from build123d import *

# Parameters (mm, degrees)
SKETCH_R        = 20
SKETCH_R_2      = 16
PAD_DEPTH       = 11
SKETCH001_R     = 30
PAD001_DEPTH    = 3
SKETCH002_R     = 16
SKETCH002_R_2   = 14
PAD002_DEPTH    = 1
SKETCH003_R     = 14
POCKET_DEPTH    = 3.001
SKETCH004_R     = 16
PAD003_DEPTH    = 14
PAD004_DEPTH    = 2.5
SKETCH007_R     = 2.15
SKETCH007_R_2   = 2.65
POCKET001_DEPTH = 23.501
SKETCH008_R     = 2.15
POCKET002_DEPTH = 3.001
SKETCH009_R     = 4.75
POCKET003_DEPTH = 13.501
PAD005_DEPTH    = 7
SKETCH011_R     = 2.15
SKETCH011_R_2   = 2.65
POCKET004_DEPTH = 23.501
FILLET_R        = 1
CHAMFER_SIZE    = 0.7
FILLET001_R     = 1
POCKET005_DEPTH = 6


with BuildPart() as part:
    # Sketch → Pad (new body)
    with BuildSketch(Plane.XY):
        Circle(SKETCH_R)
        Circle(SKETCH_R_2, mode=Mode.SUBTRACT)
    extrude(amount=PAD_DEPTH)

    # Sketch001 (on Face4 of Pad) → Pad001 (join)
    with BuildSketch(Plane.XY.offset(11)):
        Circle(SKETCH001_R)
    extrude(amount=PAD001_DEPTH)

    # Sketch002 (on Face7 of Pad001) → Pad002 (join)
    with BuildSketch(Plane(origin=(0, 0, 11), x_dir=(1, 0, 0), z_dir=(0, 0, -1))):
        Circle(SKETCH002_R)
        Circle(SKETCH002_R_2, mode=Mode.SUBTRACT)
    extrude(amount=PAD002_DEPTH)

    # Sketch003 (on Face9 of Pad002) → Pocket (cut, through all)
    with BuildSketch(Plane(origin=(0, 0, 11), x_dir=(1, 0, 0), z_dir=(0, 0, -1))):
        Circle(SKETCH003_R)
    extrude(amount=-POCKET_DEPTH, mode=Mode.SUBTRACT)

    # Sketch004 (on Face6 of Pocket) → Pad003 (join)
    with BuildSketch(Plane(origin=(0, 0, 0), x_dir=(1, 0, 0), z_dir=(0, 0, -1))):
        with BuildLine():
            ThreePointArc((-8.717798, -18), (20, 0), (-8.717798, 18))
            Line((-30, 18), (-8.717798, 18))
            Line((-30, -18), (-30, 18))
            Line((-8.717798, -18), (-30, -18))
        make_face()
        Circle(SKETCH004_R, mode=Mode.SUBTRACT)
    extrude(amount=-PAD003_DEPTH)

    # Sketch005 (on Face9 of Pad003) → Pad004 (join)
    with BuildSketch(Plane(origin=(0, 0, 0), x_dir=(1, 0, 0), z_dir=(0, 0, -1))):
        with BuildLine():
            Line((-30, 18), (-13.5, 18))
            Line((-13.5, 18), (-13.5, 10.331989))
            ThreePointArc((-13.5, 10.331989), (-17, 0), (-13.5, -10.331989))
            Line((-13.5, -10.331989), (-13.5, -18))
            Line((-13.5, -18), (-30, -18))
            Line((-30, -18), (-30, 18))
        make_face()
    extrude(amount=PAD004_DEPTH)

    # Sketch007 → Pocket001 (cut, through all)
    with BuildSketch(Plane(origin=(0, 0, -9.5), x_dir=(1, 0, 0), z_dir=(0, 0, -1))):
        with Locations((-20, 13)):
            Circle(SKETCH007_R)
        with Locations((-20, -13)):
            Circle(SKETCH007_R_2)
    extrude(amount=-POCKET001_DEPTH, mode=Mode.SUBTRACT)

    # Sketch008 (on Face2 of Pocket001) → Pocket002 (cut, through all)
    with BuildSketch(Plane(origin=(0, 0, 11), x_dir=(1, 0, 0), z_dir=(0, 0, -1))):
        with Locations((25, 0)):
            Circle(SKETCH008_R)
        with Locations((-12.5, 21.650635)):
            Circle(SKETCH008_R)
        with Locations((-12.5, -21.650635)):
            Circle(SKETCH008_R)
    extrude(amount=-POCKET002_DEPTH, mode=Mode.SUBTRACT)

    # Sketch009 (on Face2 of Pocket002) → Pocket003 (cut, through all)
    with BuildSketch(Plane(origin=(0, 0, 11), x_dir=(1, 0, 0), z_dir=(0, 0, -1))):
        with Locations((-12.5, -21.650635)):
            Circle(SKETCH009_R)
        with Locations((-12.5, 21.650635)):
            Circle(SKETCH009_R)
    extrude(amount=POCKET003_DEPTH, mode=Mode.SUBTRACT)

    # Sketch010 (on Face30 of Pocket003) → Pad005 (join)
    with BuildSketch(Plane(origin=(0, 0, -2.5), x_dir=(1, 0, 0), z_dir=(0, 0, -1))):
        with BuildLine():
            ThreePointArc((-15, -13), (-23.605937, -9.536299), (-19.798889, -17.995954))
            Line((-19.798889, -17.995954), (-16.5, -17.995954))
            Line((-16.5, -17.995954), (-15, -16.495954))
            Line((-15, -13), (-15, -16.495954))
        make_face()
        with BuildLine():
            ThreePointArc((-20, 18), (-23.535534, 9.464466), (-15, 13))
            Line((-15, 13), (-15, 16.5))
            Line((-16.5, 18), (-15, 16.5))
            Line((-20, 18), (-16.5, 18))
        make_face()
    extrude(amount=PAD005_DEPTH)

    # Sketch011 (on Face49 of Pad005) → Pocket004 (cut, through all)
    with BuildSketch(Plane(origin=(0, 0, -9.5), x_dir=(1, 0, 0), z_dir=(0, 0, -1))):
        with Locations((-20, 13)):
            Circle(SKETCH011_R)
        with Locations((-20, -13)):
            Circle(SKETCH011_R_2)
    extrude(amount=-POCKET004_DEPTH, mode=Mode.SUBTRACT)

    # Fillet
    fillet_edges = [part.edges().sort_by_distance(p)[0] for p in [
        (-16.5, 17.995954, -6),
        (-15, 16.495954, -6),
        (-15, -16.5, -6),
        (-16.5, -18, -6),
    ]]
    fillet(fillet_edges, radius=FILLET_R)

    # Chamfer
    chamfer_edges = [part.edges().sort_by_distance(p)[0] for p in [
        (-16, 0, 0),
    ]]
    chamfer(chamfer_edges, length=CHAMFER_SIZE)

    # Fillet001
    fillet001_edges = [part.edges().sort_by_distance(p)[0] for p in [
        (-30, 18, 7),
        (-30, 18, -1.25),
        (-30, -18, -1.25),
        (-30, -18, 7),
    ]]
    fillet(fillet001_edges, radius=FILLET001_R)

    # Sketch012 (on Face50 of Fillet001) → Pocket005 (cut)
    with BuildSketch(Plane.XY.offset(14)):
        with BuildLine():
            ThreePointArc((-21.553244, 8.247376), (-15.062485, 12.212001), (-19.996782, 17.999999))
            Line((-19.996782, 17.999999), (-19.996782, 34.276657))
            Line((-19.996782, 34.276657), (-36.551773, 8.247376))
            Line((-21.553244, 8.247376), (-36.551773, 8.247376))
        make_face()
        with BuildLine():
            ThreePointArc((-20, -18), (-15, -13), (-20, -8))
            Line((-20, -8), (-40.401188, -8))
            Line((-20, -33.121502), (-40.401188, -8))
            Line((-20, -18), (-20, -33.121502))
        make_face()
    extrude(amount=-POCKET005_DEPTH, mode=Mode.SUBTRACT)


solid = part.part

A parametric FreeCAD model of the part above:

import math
import FreeCAD as App
import Part
import Sketcher
Q = App.Units.Quantity


def edges_at(feature, points):
    """Names of the edges that pass closest to the given points."""
    edges = feature.Shape.Edges
    near = lambda p: min(range(len(edges)), key=lambda i: edges[i].distToShape(Part.Vertex(*p))[0])
    return sorted({f"Edge{near(p) + 1}" for p in points})

doc = App.newDocument("Part")
params = doc.addObject("Spreadsheet::Sheet", "Params")
for row, (alias, value) in enumerate([
    ("sketch1_diameter", "40 mm"),
    ("sketch1_diameter2", "32 mm"),
    ("pad1_length", "11 mm"),
    ("sketch2_diameter", "60 mm"),
    ("pad2_length", "3 mm"),
    ("sketch3_diameter", "32 mm"),
    ("sketch3_diameter2", "28 mm"),
    ("pad3_length", "1 mm"),
    ("sketch4_diameter", "28 mm"),
    ("sketch5_diameter", "32 mm"),
    ("sketch5_radius", "20 mm"),
    ("sketch5_height", "36 mm"),
    ("pad4_length", "14 mm"),
    ("sketch6_radius", "17 mm"),
    ("sketch6_height", "36 mm"),
    ("sketch6_width", "16.5 mm"),
    ("pad5_length", "2.5 mm"),
    ("sketch7_diameter", "4.3 mm"),
    ("sketch7_diameter2", "5.3 mm"),
    ("sketch8_diameter", "4.3 mm"),
    ("sketch9_diameter", "9.5 mm"),
    ("sketch10_radius", "5 mm"),
    ("sketch10_width", "3.5 mm"),
    ("pad6_length", "7 mm"),
    ("sketch11_diameter", "4.3 mm"),
    ("sketch11_diameter2", "5.3 mm"),
    ("fillet_radius", "1 mm"),
    ("chamfer_size", "0.7 mm"),
    ("fillet2_radius", "1 mm"),
    ("sketch12_radius", "5 mm"),
    ("pocket6_length", "6 mm"),
], start=1):
    params.set(f"A{row}", alias)
    params.set(f"B{row}", "=" + value)
    params.setAlias(f"B{row}", alias)

body = doc.addObject("PartDesign::Body", "Body")

sketch1 = body.newObject("Sketcher::SketchObject", "Sketch")
sketch1.AttachmentSupport = (doc.getObject("XY_Plane"), [""])
sketch1.MapMode = "FlatFace"
sketch1.addGeometry([
    Part.Circle(App.Vector(0, 0, 0), App.Vector(0, 0, 1), 20),
    Part.Circle(App.Vector(0, 0, 0), App.Vector(0, 0, 1), 16),
], False)
sketch1.addConstraint([
    Sketcher.Constraint("Coincident", 0, 3, -1, 1),
    Sketcher.Constraint("Coincident", 1, 3, -1, 1),
    Sketcher.Constraint("Diameter", 0, Q("40 mm")),
    Sketcher.Constraint("Diameter", 1, Q("32 mm")),
])
sketch1.setExpression("Constraints[2]", "Params.sketch1_diameter")
sketch1.setExpression("Constraints[3]", "Params.sketch1_diameter2")
pad1 = body.newObject("PartDesign::Pad", "Pad")
pad1.Profile = sketch1
pad1.setExpression("Length", "Params.pad1_length")

sketch2 = body.newObject("Sketcher::SketchObject", "Sketch001")
sketch2.AttachmentSupport = (doc.getObject("XY_Plane"), [""])
sketch2.MapMode = "FlatFace"
sketch2.AttachmentOffset = App.Placement(App.Vector(0, 0, 11), App.Rotation())
sketch2.addGeometry(Part.Circle(App.Vector(0, 0, 0), App.Vector(0, 0, 1), 30), False)
sketch2.addConstraint([
    Sketcher.Constraint("Coincident", 0, 3, -1, 1),
    Sketcher.Constraint("Diameter", 0, Q("60 mm")),
])
sketch2.setExpression("Constraints[1]", "Params.sketch2_diameter")
pad2 = body.newObject("PartDesign::Pad", "Pad001")
pad2.Profile = sketch2
pad2.setExpression("Length", "Params.pad2_length")

sketch3 = body.newObject("Sketcher::SketchObject", "Sketch002")
sketch3.AttachmentSupport = (doc.getObject("XY_Plane"), [""])
sketch3.MapMode = "FlatFace"
sketch3.AttachmentOffset = App.Placement(App.Vector(0, 0, 11), App.Rotation())
sketch3.addGeometry([
    Part.Circle(App.Vector(0, 0, 0), App.Vector(0, 0, 1), 16),
    Part.Circle(App.Vector(0, 0, 0), App.Vector(0, 0, 1), 14),
], False)
sketch3.addConstraint([
    Sketcher.Constraint("Coincident", 0, 3, -1, 1),
    Sketcher.Constraint("Coincident", 1, 3, -1, 1),
    Sketcher.Constraint("Diameter", 0, Q("32 mm")),
    Sketcher.Constraint("Diameter", 1, Q("28 mm")),
])
sketch3.setExpression("Constraints[2]", "Params.sketch3_diameter")
sketch3.setExpression("Constraints[3]", "Params.sketch3_diameter2")
pad3 = body.newObject("PartDesign::Pad", "Pad002")
pad3.Profile = sketch3
pad3.setExpression("Length", "Params.pad3_length")
pad3.Reversed = True

sketch4 = body.newObject("Sketcher::SketchObject", "Sketch003")
sketch4.AttachmentSupport = (doc.getObject("XY_Plane"), [""])
sketch4.MapMode = "FlatFace"
sketch4.AttachmentOffset = App.Placement(App.Vector(0, 0, 11), App.Rotation())
sketch4.addGeometry(Part.Circle(App.Vector(0, 0, 0), App.Vector(0, 0, 1), 14), False)
sketch4.addConstraint([
    Sketcher.Constraint("Coincident", 0, 3, -1, 1),
    Sketcher.Constraint("Diameter", 0, Q("28 mm")),
])
sketch4.setExpression("Constraints[1]", "Params.sketch4_diameter")
pocket1 = body.newObject("PartDesign::Pocket", "Pocket")
pocket1.Profile = sketch4
pocket1.Type = "ThroughAll"
pocket1.Reversed = True

sketch5 = body.newObject("Sketcher::SketchObject", "Sketch004")
sketch5.AttachmentSupport = (doc.getObject("XY_Plane"), [""])
sketch5.MapMode = "FlatFace"
sketch5.addGeometry([
    Part.ArcOfCircle(Part.Circle(App.Vector(0, 0, 0), App.Vector(0, 0, 1), 20), math.radians(-116), math.radians(116)),
    Part.LineSegment(App.Vector(-9, -18, 0), App.Vector(-30, -18, 0)),
    Part.LineSegment(App.Vector(-30, -18, 0), App.Vector(-30, 18, 0)),
    Part.LineSegment(App.Vector(-30, 18, 0), App.Vector(-9, 18, 0)),
    Part.Circle(App.Vector(0, 0, 0), App.Vector(0, 0, 1), 16),
], False)
sketch5.addConstraint([
    Sketcher.Constraint("Coincident", 0, 1, 1, 1),
    Sketcher.Constraint("Coincident", 1, 2, 2, 1),
    Sketcher.Constraint("Coincident", 2, 2, 3, 1),
    Sketcher.Constraint("Coincident", 3, 2, 0, 2),
    Sketcher.Constraint("Horizontal", 1),
    Sketcher.Constraint("Vertical", 2),
    Sketcher.Constraint("Horizontal", 3),
    Sketcher.Constraint("Coincident", 0, 3, -1, 1),
    Sketcher.Constraint("Coincident", 4, 3, -1, 1),
    Sketcher.Constraint("Vertical", 0, 1, 3, 2),
    Sketcher.Constraint("Diameter", 4, Q("32 mm")),
    Sketcher.Constraint("Radius", 0, Q("20 mm")),
    Sketcher.Constraint("DistanceY", 2, 1, 2, 2, Q("36 mm")),
    Sketcher.Constraint("DistanceX", 1, 2, -1, 1, Q("30 mm")),
])
sketch5.setExpression("Constraints[10]", "Params.sketch5_diameter")
sketch5.setExpression("Constraints[11]", "Params.sketch5_radius")
sketch5.setExpression("Constraints[12]", "Params.sketch5_height")
pad4 = body.newObject("PartDesign::Pad", "Pad003")
pad4.Profile = sketch5
pad4.setExpression("Length", "Params.pad4_length")

sketch6 = body.newObject("Sketcher::SketchObject", "Sketch005")
sketch6.AttachmentSupport = (doc.getObject("XY_Plane"), [""])
sketch6.MapMode = "FlatFace"
sketch6.addGeometry([
    Part.LineSegment(App.Vector(-14, -18, 0), App.Vector(-30, -18, 0)),
    Part.LineSegment(App.Vector(-30, -18, 0), App.Vector(-30, 18, 0)),
    Part.LineSegment(App.Vector(-30, 18, 0), App.Vector(-14, 18, 0)),
    Part.LineSegment(App.Vector(-14, 18, 0), App.Vector(-14, 10, 0)),
    Part.ArcOfCircle(Part.Circle(App.Vector(0, 0, 0), App.Vector(0, 0, 1), 17), math.radians(143), math.radians(217)),
    Part.LineSegment(App.Vector(-14, -10, 0), App.Vector(-14, -18, 0)),
], False)
sketch6.addConstraint([
    Sketcher.Constraint("Coincident", 0, 2, 1, 1),
    Sketcher.Constraint("Coincident", 1, 2, 2, 1),
    Sketcher.Constraint("Coincident", 2, 2, 3, 1),
    Sketcher.Constraint("Coincident", 3, 2, 4, 1),
    Sketcher.Constraint("Coincident", 4, 2, 5, 1),
    Sketcher.Constraint("Coincident", 5, 2, 0, 1),
    Sketcher.Constraint("Horizontal", 0),
    Sketcher.Constraint("Vertical", 1),
    Sketcher.Constraint("Horizontal", 2),
    Sketcher.Constraint("Vertical", 3),
    Sketcher.Constraint("Vertical", 5),
    Sketcher.Constraint("Coincident", 4, 3, -1, 1),
    Sketcher.Constraint("Symmetric", 2, 2, 5, 2, -1),
    Sketcher.Constraint("Radius", 4, Q("17 mm")),
    Sketcher.Constraint("DistanceY", 1, 1, 1, 2, Q("36 mm")),
    Sketcher.Constraint("DistanceX", 0, 2, 0, 1, Q("16.5 mm")),
    Sketcher.Constraint("DistanceX", 0, 2, -1, 1, Q("30 mm")),
])
sketch6.setExpression("Constraints[13]", "Params.sketch6_radius")
sketch6.setExpression("Constraints[14]", "Params.sketch6_height")
sketch6.setExpression("Constraints[15]", "Params.sketch6_width")
pad5 = body.newObject("PartDesign::Pad", "Pad004")
pad5.Profile = sketch6
pad5.setExpression("Length", "Params.pad5_length")
pad5.Reversed = True

sketch7 = body.newObject("Sketcher::SketchObject", "Sketch006")
sketch7.AttachmentSupport = (doc.getObject("XY_Plane"), [""])
sketch7.MapMode = "FlatFace"
sketch7.AttachmentOffset = App.Placement(App.Vector(0, 0, -9.5), App.Rotation())
sketch7.addGeometry([
    Part.Circle(App.Vector(-20, -13, 0), App.Vector(0, 0, 1), 2.1),
    Part.Circle(App.Vector(-20, 13, 0), App.Vector(0, 0, 1), 2.6),
], False)
sketch7.addConstraint([
    Sketcher.Constraint("Symmetric", 0, 3, 1, 3, -1),
    Sketcher.Constraint("Diameter", 0, Q("4.3 mm")),
    Sketcher.Constraint("Diameter", 1, Q("5.3 mm")),
    Sketcher.Constraint("DistanceX", 0, 3, -1, 1, Q("20 mm")),
    Sketcher.Constraint("DistanceY", 0, 3, -1, 1, Q("13 mm")),
])
sketch7.setExpression("Constraints[1]", "Params.sketch7_diameter")
sketch7.setExpression("Constraints[2]", "Params.sketch7_diameter2")
pocket2 = body.newObject("PartDesign::Pocket", "Pocket001")
pocket2.Profile = sketch7
pocket2.Type = "ThroughAll"
pocket2.Reversed = True

sketch8 = body.newObject("Sketcher::SketchObject", "Sketch007")
sketch8.AttachmentSupport = (doc.getObject("XY_Plane"), [""])
sketch8.MapMode = "FlatFace"
sketch8.AttachmentOffset = App.Placement(App.Vector(0, 0, 11), App.Rotation())
sketch8.addGeometry([
    Part.Circle(App.Vector(25, 0, 0), App.Vector(0, 0, 1), 2.1),
    Part.Circle(App.Vector(-12.5, -21.7, 0), App.Vector(0, 0, 1), 2.1),
    Part.Circle(App.Vector(-12.5, 21.7, 0), App.Vector(0, 0, 1), 2.1),
], False)
sketch8.addConstraint([
    Sketcher.Constraint("Equal", 0, 1),
    Sketcher.Constraint("Equal", 1, 2),
    Sketcher.Constraint("Symmetric", 1, 3, 2, 3, -1),
    Sketcher.Constraint("PointOnObject", 0, 3, -1),
    Sketcher.Constraint("Diameter", 0, Q("4.3 mm")),
    Sketcher.Constraint("DistanceX", -1, 1, 0, 3, Q("25 mm")),
    Sketcher.Constraint("DistanceX", 1, 3, -1, 1, Q("12.5 mm")),
    Sketcher.Constraint("DistanceY", 1, 3, 2, 3, Q("43.30127 mm")),
])
sketch8.setExpression("Constraints[4]", "Params.sketch8_diameter")
pocket3 = body.newObject("PartDesign::Pocket", "Pocket002")
pocket3.Profile = sketch8
pocket3.Type = "ThroughAll"
pocket3.Reversed = True

sketch9 = body.newObject("Sketcher::SketchObject", "Sketch008")
sketch9.AttachmentSupport = (doc.getObject("XY_Plane"), [""])
sketch9.MapMode = "FlatFace"
sketch9.AttachmentOffset = App.Placement(App.Vector(0, 0, 11), App.Rotation())
sketch9.addGeometry([
    Part.Circle(App.Vector(-12.5, 21.7, 0), App.Vector(0, 0, 1), 4.8),
    Part.Circle(App.Vector(-12.5, -21.7, 0), App.Vector(0, 0, 1), 4.8),
], False)
sketch9.addConstraint([
    Sketcher.Constraint("Equal", 0, 1),
    Sketcher.Constraint("Symmetric", 0, 3, 1, 3, -1),
    Sketcher.Constraint("Diameter", 0, Q("9.5 mm")),
    Sketcher.Constraint("DistanceX", 0, 3, -1, 1, Q("12.5 mm")),
    Sketcher.Constraint("DistanceY", 1, 3, 0, 3, Q("43.30127 mm")),
])
sketch9.setExpression("Constraints[2]", "Params.sketch9_diameter")
pocket4 = body.newObject("PartDesign::Pocket", "Pocket003")
pocket4.Profile = sketch9
pocket4.Type = "ThroughAll"

sketch10 = body.newObject("Sketcher::SketchObject", "Sketch009")
sketch10.AttachmentSupport = (doc.getObject("XY_Plane"), [""])
sketch10.MapMode = "FlatFace"
sketch10.AttachmentOffset = App.Placement(App.Vector(0, 0, -2.5), App.Rotation())
sketch10.addGeometry([
    Part.ArcOfCircle(Part.Circle(App.Vector(-20, 13, 0), App.Vector(0, 0, 1), 5), math.radians(88), math.radians(360)),
    Part.LineSegment(App.Vector(-19.8, 18, 0), App.Vector(-16.5, 18, 0)),
    Part.LineSegment(App.Vector(-16.5, 18, 0), App.Vector(-15, 16.5, 0)),
    Part.LineSegment(App.Vector(-15, 16.5, 0), App.Vector(-15, 13, 0)),
    Part.ArcOfCircle(Part.Circle(App.Vector(-20, -13, 0), App.Vector(0, 0, 1), 5), math.radians(0), math.radians(270)),
    Part.LineSegment(App.Vector(-15, -13, 0), App.Vector(-15, -16.5, 0)),
    Part.LineSegment(App.Vector(-15, -16.5, 0), App.Vector(-16.5, -18, 0)),
    Part.LineSegment(App.Vector(-16.5, -18, 0), App.Vector(-20, -18, 0)),
], False)
sketch10.addConstraint([
    Sketcher.Constraint("Coincident", 0, 1, 1, 1),
    Sketcher.Constraint("Coincident", 1, 2, 2, 1),
    Sketcher.Constraint("Coincident", 2, 2, 3, 1),
    Sketcher.Constraint("Tangent", 3, 2, 0, 2),
    Sketcher.Constraint("Tangent", 4, 1, 5, 1),
    Sketcher.Constraint("Coincident", 5, 2, 6, 1),
    Sketcher.Constraint("Coincident", 6, 2, 7, 1),
    Sketcher.Constraint("Tangent", 7, 2, 4, 2),
    Sketcher.Constraint("Horizontal", 1),
    Sketcher.Constraint("Vertical", 3),
    Sketcher.Constraint("Vertical", 5),
    Sketcher.Constraint("Horizontal", 7),
    Sketcher.Constraint("Equal", 0, 4),
    Sketcher.Constraint("Symmetric", 0, 3, 4, 3, -1),
    Sketcher.Constraint("Perpendicular", 2, 6),
    Sketcher.Constraint("Vertical", 1, 2, 6, 2),
    Sketcher.Constraint("Equal", 7, 5),
    Sketcher.Constraint("Radius", 0, Q("5 mm")),
    Sketcher.Constraint("DistanceX", 7, 2, 7, 1, Q("3.5 mm")),
    Sketcher.Constraint("DistanceX", 0, 3, -1, 1, Q("20 mm")),
    Sketcher.Constraint("DistanceY", -1, 1, 0, 3, Q("13 mm")),
    Sketcher.Constraint("DistanceX", 1, 1, 1, 2, Q("3.298889 mm")),
])
sketch10.setExpression("Constraints[17]", "Params.sketch10_radius")
sketch10.setExpression("Constraints[18]", "Params.sketch10_width")
pad6 = body.newObject("PartDesign::Pad", "Pad005")
pad6.Profile = sketch10
pad6.setExpression("Length", "Params.pad6_length")
pad6.Reversed = True

sketch11 = body.newObject("Sketcher::SketchObject", "Sketch010")
sketch11.AttachmentSupport = (doc.getObject("XY_Plane"), [""])
sketch11.MapMode = "FlatFace"
sketch11.AttachmentOffset = App.Placement(App.Vector(0, 0, -9.5), App.Rotation())
sketch11.addGeometry([
    Part.Circle(App.Vector(-20, -13, 0), App.Vector(0, 0, 1), 2.1),
    Part.Circle(App.Vector(-20, 13, 0), App.Vector(0, 0, 1), 2.6),
], False)
sketch11.addConstraint([
    Sketcher.Constraint("Symmetric", 0, 3, 1, 3, -1),
    Sketcher.Constraint("Diameter", 0, Q("4.3 mm")),
    Sketcher.Constraint("Diameter", 1, Q("5.3 mm")),
    Sketcher.Constraint("DistanceX", 0, 3, -1, 1, Q("20 mm")),
    Sketcher.Constraint("DistanceY", 0, 3, -1, 1, Q("13 mm")),
])
sketch11.setExpression("Constraints[1]", "Params.sketch11_diameter")
sketch11.setExpression("Constraints[2]", "Params.sketch11_diameter2")
pocket5 = body.newObject("PartDesign::Pocket", "Pocket004")
pocket5.Profile = sketch11
pocket5.Type = "ThroughAll"
pocket5.Reversed = True
doc.recompute()

fillet = body.newObject("PartDesign::Fillet", "Fillet")
fillet.Base = (pocket5, edges_at(pocket5, [
    (-16.5, 17.996, -6),
    (-15, 16.496, -6),
    (-15, -16.5, -6),
    (-16.5, -18, -6),
]))
fillet.setExpression("Radius", "Params.fillet_radius")
doc.recompute()

chamfer = body.newObject("PartDesign::Chamfer", "Chamfer")
chamfer.Base = (fillet, edges_at(fillet, [(-16, 0, 0)]))
chamfer.setExpression("Size", "Params.chamfer_size")
doc.recompute()

fillet2 = body.newObject("PartDesign::Fillet", "Fillet001")
fillet2.Base = (chamfer, edges_at(chamfer, [
    (-30, 18, 5.75),
    (-30, 18, 5.75),
    (-30, -18, 5.75),
    (-30, -18, 5.75),
]))
fillet2.setExpression("Radius", "Params.fillet2_radius")

sketch12 = body.newObject("Sketcher::SketchObject", "Sketch011")
sketch12.AttachmentSupport = (doc.getObject("XY_Plane"), [""])
sketch12.MapMode = "FlatFace"
sketch12.AttachmentOffset = App.Placement(App.Vector(0, 0, 14), App.Rotation())
sketch12.addGeometry([
    Part.ArcOfCircle(Part.Circle(App.Vector(-20, 13, 0), App.Vector(0, 0, 1), 5), math.radians(-108), math.radians(90)),
    Part.LineSegment(App.Vector(-20, 18, 0), App.Vector(-20, 34, 0)),
    Part.LineSegment(App.Vector(-20, 34, 0), App.Vector(-37, 8, 0)),
    Part.LineSegment(App.Vector(-37, 8, 0), App.Vector(-22, 8, 0)),
    Part.ArcOfCircle(Part.Circle(App.Vector(-20, -13, 0), App.Vector(0, 0, 1), 5), math.radians(-90), math.radians(90)),
    Part.LineSegment(App.Vector(-20, -8, 0), App.Vector(-40, -8, 0)),
    Part.LineSegment(App.Vector(-40, -8, 0), App.Vector(-20, -33, 0)),
    Part.LineSegment(App.Vector(-20, -33, 0), App.Vector(-20, -18, 0)),
], False)
sketch12.addConstraint([
    Sketcher.Constraint("Coincident", 0, 2, 1, 1),
    Sketcher.Constraint("Coincident", 1, 2, 2, 1),
    Sketcher.Constraint("Coincident", 2, 2, 3, 1),
    Sketcher.Constraint("Coincident", 3, 2, 0, 1),
    Sketcher.Constraint("Tangent", 4, 2, 5, 1),
    Sketcher.Constraint("Coincident", 5, 2, 6, 1),
    Sketcher.Constraint("Coincident", 6, 2, 7, 1),
    Sketcher.Constraint("Coincident", 7, 2, 4, 1),
    Sketcher.Constraint("Vertical", 1),
    Sketcher.Constraint("Horizontal", 3),
    Sketcher.Constraint("Horizontal", 5),
    Sketcher.Constraint("Vertical", 7),
    Sketcher.Constraint("Equal", 0, 4),
    Sketcher.Constraint("Symmetric", 0, 3, 4, 3, -1),
    Sketcher.Constraint("Vertical", 4, 2, 6, 2),
    Sketcher.Constraint("Radius", 0, Q("5 mm")),
    Sketcher.Constraint("DistanceX", 0, 3, -1, 1, Q("20 mm")),
    Sketcher.Constraint("DistanceY", -1, 1, 0, 3, Q("13 mm")),
    Sketcher.Constraint("DistanceX", 3, 1, 3, 2, Q("14.998529 mm")),
    Sketcher.Constraint("DistanceY", 1, 1, 1, 2, Q("16.276658 mm")),
    Sketcher.Constraint("DistanceY", 6, 2, 4, 3, Q("20.121502 mm")),
    Sketcher.Constraint("Distance", 2, Q("30.847872 mm")),
    Sketcher.Constraint("Distance", 6, Q("32.361989 mm")),
    Sketcher.Constraint("DistanceX", 0, 2, -1, 1, Q("19.996782 mm")),
])
sketch12.setExpression("Constraints[15]", "Params.sketch12_radius")
pocket6 = body.newObject("PartDesign::Pocket", "Pocket005")
pocket6.Profile = sketch12
pocket6.setExpression("Length", "Params.pocket6_length")

doc.recompute()
